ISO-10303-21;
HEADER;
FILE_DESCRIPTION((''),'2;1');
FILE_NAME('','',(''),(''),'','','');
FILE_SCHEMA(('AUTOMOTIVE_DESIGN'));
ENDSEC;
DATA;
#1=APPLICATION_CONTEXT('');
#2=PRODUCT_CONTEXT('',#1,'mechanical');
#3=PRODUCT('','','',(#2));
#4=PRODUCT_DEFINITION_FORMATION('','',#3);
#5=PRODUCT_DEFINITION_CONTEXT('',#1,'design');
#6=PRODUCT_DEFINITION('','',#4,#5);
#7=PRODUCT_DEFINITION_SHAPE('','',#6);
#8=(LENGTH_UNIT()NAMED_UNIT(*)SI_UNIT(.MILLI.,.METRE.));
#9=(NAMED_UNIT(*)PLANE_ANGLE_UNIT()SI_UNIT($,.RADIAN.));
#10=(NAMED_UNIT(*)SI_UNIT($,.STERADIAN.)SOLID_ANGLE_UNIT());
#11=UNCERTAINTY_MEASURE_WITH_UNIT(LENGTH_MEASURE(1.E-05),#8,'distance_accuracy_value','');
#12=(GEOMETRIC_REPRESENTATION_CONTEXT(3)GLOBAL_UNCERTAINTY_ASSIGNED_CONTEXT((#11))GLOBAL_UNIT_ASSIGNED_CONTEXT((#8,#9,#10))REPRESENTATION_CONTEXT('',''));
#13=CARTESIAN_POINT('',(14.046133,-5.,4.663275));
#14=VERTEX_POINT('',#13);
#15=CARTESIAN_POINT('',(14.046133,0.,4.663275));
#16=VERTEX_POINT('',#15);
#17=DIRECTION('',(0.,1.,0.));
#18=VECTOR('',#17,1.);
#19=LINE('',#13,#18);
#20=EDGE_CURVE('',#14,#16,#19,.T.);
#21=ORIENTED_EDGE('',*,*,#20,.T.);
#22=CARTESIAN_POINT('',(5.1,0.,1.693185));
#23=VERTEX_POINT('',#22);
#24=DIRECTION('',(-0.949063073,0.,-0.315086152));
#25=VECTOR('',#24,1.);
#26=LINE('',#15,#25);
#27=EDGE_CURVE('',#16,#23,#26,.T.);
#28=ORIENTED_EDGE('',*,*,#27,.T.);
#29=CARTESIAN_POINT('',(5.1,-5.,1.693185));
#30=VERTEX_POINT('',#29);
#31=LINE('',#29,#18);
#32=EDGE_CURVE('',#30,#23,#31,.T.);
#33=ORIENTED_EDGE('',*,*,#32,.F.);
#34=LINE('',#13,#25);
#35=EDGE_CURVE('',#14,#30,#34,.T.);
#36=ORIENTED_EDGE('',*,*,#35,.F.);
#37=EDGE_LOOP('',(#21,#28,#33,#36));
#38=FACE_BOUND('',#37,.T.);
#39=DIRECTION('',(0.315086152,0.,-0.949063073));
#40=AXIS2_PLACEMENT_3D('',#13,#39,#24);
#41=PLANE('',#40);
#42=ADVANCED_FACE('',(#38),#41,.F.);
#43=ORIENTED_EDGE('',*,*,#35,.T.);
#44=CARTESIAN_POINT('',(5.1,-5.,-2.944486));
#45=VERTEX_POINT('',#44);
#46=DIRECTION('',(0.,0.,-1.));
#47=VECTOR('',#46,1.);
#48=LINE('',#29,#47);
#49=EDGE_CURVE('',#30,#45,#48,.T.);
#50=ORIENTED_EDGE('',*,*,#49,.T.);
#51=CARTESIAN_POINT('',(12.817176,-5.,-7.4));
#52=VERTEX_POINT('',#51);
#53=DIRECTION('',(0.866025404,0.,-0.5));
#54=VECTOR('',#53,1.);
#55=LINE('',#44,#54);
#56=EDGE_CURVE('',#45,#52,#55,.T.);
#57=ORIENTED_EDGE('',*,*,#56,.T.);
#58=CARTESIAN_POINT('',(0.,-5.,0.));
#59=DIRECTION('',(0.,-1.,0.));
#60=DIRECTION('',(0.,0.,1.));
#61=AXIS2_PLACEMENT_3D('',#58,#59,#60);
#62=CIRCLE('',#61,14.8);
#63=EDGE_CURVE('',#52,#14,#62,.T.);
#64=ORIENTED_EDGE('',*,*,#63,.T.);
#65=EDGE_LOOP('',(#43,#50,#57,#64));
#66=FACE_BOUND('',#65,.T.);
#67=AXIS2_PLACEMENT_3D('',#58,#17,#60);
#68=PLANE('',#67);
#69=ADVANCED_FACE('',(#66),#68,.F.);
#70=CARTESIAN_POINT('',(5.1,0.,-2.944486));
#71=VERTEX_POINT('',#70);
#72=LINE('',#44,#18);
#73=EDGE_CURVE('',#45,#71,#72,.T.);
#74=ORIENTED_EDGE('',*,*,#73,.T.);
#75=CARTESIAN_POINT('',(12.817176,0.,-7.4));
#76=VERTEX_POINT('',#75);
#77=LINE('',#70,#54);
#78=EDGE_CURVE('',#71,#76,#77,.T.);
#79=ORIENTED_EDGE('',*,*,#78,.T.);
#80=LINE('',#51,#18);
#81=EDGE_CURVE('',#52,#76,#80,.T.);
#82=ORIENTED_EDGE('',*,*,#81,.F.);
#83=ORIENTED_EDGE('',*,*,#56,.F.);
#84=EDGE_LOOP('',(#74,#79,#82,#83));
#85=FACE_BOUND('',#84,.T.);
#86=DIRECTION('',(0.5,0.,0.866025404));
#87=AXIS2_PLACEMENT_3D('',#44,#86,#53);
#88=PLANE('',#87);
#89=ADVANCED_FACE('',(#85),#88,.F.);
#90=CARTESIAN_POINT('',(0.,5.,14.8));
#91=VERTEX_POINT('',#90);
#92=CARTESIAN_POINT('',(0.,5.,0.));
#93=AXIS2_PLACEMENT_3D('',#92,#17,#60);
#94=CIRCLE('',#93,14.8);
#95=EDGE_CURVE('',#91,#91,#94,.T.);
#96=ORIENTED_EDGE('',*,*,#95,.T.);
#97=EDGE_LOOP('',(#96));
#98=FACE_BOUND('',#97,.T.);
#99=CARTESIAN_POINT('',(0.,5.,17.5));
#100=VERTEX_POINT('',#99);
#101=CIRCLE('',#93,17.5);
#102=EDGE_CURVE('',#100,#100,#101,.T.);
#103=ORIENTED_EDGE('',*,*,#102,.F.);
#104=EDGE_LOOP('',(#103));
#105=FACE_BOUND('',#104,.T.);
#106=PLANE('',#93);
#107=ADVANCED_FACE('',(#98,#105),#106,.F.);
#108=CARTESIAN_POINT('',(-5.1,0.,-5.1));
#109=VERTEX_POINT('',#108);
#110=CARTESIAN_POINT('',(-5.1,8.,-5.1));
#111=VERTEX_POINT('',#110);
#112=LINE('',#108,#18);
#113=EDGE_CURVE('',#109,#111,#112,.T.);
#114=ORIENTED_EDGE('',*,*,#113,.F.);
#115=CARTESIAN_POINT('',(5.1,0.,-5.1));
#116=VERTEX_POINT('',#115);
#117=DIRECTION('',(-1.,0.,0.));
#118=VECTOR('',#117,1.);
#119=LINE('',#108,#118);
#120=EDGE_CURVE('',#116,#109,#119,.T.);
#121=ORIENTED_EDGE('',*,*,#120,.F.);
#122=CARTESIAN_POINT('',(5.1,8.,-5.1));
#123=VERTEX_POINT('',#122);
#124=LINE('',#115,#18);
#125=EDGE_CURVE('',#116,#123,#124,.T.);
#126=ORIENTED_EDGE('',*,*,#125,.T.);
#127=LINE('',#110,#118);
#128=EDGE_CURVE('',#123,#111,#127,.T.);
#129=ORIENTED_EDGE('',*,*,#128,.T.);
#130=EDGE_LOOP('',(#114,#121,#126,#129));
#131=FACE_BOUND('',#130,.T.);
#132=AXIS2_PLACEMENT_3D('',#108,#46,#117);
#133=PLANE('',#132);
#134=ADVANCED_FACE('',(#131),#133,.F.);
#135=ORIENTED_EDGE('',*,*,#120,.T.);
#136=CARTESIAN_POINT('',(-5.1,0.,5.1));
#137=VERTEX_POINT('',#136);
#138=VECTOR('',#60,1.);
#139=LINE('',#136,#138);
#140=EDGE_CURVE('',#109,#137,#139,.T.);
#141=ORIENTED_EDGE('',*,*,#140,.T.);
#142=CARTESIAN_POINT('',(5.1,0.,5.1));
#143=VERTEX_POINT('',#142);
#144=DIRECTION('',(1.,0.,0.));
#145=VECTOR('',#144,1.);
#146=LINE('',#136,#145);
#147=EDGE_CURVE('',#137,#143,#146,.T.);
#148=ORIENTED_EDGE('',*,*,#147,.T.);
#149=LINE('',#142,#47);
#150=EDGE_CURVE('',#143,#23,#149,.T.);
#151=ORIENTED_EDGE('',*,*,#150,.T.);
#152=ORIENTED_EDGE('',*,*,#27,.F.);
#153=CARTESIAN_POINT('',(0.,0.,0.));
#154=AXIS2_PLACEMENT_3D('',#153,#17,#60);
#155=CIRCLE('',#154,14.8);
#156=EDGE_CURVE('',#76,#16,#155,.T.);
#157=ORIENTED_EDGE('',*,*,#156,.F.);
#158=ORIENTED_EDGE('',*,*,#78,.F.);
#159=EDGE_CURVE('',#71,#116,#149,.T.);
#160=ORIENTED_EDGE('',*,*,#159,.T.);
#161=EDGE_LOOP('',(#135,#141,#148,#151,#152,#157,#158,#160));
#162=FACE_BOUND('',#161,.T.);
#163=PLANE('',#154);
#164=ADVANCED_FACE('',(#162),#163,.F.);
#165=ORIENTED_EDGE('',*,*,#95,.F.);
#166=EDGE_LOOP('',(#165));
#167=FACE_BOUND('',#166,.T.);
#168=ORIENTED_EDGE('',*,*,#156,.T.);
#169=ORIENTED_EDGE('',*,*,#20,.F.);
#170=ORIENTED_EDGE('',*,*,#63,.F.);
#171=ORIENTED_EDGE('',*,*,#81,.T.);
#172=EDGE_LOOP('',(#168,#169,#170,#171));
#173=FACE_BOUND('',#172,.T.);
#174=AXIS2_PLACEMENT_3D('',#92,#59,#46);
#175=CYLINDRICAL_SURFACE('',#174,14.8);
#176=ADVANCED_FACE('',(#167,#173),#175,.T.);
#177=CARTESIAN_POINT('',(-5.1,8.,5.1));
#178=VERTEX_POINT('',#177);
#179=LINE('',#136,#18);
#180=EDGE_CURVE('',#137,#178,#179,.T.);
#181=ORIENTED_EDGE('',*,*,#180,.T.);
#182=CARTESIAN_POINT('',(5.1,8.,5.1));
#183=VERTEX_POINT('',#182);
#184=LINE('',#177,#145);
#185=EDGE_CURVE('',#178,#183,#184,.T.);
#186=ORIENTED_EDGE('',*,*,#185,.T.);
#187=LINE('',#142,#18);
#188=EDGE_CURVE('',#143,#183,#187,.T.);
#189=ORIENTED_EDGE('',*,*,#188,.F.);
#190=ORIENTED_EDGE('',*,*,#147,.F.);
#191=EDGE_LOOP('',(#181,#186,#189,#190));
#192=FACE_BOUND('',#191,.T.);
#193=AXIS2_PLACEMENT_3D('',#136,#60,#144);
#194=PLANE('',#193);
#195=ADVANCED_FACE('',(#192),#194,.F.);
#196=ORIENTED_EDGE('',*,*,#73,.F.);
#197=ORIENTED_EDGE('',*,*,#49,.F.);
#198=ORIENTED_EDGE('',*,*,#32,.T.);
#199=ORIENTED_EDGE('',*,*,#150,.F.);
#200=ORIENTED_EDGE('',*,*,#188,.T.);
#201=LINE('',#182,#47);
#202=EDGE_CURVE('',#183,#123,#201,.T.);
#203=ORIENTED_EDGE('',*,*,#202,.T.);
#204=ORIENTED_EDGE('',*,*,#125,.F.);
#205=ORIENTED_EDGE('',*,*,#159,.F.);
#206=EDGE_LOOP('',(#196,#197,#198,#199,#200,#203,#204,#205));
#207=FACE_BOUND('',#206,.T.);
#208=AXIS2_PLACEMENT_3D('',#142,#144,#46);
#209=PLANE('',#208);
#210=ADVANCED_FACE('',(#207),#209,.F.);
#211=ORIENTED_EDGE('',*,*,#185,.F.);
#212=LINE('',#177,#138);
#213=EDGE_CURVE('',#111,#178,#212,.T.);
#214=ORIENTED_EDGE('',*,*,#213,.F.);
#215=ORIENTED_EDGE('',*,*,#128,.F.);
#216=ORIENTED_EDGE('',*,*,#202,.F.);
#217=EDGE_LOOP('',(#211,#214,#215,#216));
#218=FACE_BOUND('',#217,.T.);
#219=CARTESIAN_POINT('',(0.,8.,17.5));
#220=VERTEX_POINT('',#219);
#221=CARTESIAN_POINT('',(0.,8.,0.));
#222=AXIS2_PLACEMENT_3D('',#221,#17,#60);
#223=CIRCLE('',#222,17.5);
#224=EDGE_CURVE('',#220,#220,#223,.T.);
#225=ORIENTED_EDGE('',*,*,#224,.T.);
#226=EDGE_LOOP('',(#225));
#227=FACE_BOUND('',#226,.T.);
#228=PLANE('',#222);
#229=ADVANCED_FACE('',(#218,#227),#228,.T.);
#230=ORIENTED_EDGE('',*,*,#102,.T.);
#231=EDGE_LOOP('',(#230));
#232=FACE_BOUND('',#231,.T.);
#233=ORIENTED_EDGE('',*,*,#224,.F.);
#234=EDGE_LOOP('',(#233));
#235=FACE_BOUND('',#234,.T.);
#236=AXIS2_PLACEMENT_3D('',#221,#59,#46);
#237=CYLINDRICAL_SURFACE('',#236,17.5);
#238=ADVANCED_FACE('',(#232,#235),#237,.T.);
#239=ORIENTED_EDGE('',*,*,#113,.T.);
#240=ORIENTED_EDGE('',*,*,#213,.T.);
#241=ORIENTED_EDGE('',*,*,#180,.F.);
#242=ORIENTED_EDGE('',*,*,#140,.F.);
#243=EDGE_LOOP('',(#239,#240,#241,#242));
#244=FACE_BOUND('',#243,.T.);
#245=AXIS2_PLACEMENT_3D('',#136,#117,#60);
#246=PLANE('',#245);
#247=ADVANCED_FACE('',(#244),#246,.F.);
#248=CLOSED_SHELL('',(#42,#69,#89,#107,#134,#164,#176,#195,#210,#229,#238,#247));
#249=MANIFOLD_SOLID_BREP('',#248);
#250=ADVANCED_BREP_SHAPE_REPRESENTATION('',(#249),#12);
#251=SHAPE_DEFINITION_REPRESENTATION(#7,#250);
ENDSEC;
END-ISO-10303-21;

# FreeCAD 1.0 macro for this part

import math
import FreeCAD as App
import Part
import Sketcher
Q = App.Units.Quantity

doc = App.newDocument("Part")
params = doc.addObject("Spreadsheet::Sheet", "Params")
for row, (alias, value) in enumerate([
    ("sketch1_diameter", "29.6 mm"),
    ("pad1_length", "5 mm"),
    ("sketch2_diameter", "35 mm"),
    ("pad2_length", "3 mm"),
    ("sketch3_width", "10.2 mm"),
    ("sketch4_radius", "14.8 mm"),
    ("pad3_length", "5 mm"),
], start=1):
    params.set(f"A{row}", alias)
    params.set(f"B{row}", "=" + value)
    params.setAlias(f"B{row}", alias)

body = doc.addObject("PartDesign::Body", "Body")

# Sketch on XZ plane
sketch1 = body.newObject("Sketcher::SketchObject", "Sketch")
sketch1.AttachmentSupport = (doc.getObject("XZ_Plane"), [""])
sketch1.MapMode = "FlatFace"
sketch1.addGeometry(Part.Circle(App.Vector(0, 0, 0), App.Vector(0, 0, 1), 14.8), False)
sketch1.addConstraint([
    Sketcher.Constraint("Coincident", 0, 3, -1, 1),
    Sketcher.Constraint("Diameter", 0, 29.6),
])
sketch1.setExpression("Constraints[1]", "Params.sketch1_diameter")
pad1 = body.newObject("PartDesign::Pad", "Pad")
pad1.Profile = sketch1
pad1.setExpression("Length", "Params.pad1_length")
pad1.Reversed = True

# Sketch on XZ plane
sketch2 = body.newObject("Sketcher::SketchObject", "Sketch001")
sketch2.AttachmentSupport = (doc.getObject("XZ_Plane"), [""])
sketch2.MapMode = "FlatFace"
sketch2.AttachmentOffset = App.Placement(App.Vector(0, 0, -5), App.Rotation())
sketch2.addGeometry(Part.Circle(App.Vector(0, 0, 0), App.Vector(0, 0, 1), 17.5), False)
sketch2.addConstraint([
    Sketcher.Constraint("Coincident", 0, 3, -1, 1),
    Sketcher.Constraint("Diameter", 0, 35.0),
])
sketch2.setExpression("Constraints[1]", "Params.sketch2_diameter")
pad2 = body.newObject("PartDesign::Pad", "Pad001")
pad2.Profile = sketch2
pad2.setExpression("Length", "Params.pad2_length")
pad2.Reversed = True

# Sketch on XZ plane
sketch3 = body.newObject("Sketcher::SketchObject", "Sketch002")
sketch3.AttachmentSupport = (doc.getObject("XZ_Plane"), [""])
sketch3.MapMode = "FlatFace"
sketch3.AttachmentOffset = App.Placement(App.Vector(0, 0, -8), App.Rotation())
sketch3.addGeometry([
    Part.LineSegment(App.Vector(-5.1, -5.1, 0), App.Vector(-5.1, 5.1, 0)),
    Part.LineSegment(App.Vector(-5.1, 5.1, 0), App.Vector(5.1, 5.1, 0)),
    Part.LineSegment(App.Vector(5.1, 5.1, 0), App.Vector(5.1, -5.1, 0)),
    Part.LineSegment(App.Vector(5.1, -5.1, 0), App.Vector(-5.1, -5.1, 0)),
], False)
sketch3.addConstraint([
    Sketcher.Constraint("Coincident", 0, 2, 1, 1),
    Sketcher.Constraint("Coincident", 1, 2, 2, 1),
    Sketcher.Constraint("Coincident", 2, 2, 3, 1),
    Sketcher.Constraint("Coincident", 3, 2, 0, 1),
    Sketcher.Constraint("Vertical", 0),
    Sketcher.Constraint("Horizontal", 1),
    Sketcher.Constraint("Vertical", 2),
    Sketcher.Constraint("Horizontal", 3),
    Sketcher.Constraint("Symmetric", 0, 2, 2, 2, -1, 1),
    Sketcher.Constraint("Equal", 3, 0),
    Sketcher.Constraint("DistanceX", 1, 1, 1, 2, 10.2),
])
sketch3.setExpression("Constraints[10]", "Params.sketch3_width")
pocket1 = body.newObject("PartDesign::Pocket", "Pocket")
pocket1.Profile = sketch3
pocket1.Type = "ThroughAll"
pocket1.Reversed = True

# Sketch on XZ plane
sketch4 = body.newObject("Sketcher::SketchObject", "Sketch003")
sketch4.AttachmentSupport = (doc.getObject("XZ_Plane"), [""])
sketch4.MapMode = "FlatFace"
sketch4.addGeometry([
    Part.LineSegment(App.Vector(14.046133, 4.663275, 0), App.Vector(5.1, 1.693185, 0)),
    Part.LineSegment(App.Vector(5.1, 1.693185, 0), App.Vector(5.1, -2.944486, 0)),
    Part.LineSegment(App.Vector(5.1, -2.944486, 0), App.Vector(12.817176, -7.4, 0)),
    Part.ArcOfCircle(Part.Circle(App.Vector(0, 0, 0), App.Vector(0, 0, 1), 14.8), math.radians(-30), math.radians(18.366015)),
], False)
sketch4.addConstraint([
    Sketcher.Constraint("Coincident", 0, 2, 1, 1),
    Sketcher.Constraint("Coincident", 1, 2, 2, 1),
    Sketcher.Constraint("Coincident", 2, 2, 3, 1),
    Sketcher.Constraint("Coincident", 3, 2, 0, 1),
    Sketcher.Constraint("Vertical", 1),
    Sketcher.Constraint("Coincident", 3, 3, -1, 1),
    Sketcher.Constraint("Radius", 3, 14.8),
    Sketcher.Constraint("Angle", 2, Q("-30 deg")),
    Sketcher.Constraint("DistanceX", -1, 1, 0, 2, 5.1),
    Sketcher.Constraint("DistanceY", 2, 2, -1, 1, 7.4),
    Sketcher.Constraint("DistanceY", 1, 2, 1, 1, 4.637671),
    Sketcher.Constraint("DistanceY", 0, 2, 3, 2, 2.97009),
])
sketch4.setExpression("Constraints[6]", "Params.sketch4_radius")
pad3 = body.newObject("PartDesign::Pad", "Pad002")
pad3.Profile = sketch4
pad3.setExpression("Length", "Params.pad3_length")

doc.recompute()
